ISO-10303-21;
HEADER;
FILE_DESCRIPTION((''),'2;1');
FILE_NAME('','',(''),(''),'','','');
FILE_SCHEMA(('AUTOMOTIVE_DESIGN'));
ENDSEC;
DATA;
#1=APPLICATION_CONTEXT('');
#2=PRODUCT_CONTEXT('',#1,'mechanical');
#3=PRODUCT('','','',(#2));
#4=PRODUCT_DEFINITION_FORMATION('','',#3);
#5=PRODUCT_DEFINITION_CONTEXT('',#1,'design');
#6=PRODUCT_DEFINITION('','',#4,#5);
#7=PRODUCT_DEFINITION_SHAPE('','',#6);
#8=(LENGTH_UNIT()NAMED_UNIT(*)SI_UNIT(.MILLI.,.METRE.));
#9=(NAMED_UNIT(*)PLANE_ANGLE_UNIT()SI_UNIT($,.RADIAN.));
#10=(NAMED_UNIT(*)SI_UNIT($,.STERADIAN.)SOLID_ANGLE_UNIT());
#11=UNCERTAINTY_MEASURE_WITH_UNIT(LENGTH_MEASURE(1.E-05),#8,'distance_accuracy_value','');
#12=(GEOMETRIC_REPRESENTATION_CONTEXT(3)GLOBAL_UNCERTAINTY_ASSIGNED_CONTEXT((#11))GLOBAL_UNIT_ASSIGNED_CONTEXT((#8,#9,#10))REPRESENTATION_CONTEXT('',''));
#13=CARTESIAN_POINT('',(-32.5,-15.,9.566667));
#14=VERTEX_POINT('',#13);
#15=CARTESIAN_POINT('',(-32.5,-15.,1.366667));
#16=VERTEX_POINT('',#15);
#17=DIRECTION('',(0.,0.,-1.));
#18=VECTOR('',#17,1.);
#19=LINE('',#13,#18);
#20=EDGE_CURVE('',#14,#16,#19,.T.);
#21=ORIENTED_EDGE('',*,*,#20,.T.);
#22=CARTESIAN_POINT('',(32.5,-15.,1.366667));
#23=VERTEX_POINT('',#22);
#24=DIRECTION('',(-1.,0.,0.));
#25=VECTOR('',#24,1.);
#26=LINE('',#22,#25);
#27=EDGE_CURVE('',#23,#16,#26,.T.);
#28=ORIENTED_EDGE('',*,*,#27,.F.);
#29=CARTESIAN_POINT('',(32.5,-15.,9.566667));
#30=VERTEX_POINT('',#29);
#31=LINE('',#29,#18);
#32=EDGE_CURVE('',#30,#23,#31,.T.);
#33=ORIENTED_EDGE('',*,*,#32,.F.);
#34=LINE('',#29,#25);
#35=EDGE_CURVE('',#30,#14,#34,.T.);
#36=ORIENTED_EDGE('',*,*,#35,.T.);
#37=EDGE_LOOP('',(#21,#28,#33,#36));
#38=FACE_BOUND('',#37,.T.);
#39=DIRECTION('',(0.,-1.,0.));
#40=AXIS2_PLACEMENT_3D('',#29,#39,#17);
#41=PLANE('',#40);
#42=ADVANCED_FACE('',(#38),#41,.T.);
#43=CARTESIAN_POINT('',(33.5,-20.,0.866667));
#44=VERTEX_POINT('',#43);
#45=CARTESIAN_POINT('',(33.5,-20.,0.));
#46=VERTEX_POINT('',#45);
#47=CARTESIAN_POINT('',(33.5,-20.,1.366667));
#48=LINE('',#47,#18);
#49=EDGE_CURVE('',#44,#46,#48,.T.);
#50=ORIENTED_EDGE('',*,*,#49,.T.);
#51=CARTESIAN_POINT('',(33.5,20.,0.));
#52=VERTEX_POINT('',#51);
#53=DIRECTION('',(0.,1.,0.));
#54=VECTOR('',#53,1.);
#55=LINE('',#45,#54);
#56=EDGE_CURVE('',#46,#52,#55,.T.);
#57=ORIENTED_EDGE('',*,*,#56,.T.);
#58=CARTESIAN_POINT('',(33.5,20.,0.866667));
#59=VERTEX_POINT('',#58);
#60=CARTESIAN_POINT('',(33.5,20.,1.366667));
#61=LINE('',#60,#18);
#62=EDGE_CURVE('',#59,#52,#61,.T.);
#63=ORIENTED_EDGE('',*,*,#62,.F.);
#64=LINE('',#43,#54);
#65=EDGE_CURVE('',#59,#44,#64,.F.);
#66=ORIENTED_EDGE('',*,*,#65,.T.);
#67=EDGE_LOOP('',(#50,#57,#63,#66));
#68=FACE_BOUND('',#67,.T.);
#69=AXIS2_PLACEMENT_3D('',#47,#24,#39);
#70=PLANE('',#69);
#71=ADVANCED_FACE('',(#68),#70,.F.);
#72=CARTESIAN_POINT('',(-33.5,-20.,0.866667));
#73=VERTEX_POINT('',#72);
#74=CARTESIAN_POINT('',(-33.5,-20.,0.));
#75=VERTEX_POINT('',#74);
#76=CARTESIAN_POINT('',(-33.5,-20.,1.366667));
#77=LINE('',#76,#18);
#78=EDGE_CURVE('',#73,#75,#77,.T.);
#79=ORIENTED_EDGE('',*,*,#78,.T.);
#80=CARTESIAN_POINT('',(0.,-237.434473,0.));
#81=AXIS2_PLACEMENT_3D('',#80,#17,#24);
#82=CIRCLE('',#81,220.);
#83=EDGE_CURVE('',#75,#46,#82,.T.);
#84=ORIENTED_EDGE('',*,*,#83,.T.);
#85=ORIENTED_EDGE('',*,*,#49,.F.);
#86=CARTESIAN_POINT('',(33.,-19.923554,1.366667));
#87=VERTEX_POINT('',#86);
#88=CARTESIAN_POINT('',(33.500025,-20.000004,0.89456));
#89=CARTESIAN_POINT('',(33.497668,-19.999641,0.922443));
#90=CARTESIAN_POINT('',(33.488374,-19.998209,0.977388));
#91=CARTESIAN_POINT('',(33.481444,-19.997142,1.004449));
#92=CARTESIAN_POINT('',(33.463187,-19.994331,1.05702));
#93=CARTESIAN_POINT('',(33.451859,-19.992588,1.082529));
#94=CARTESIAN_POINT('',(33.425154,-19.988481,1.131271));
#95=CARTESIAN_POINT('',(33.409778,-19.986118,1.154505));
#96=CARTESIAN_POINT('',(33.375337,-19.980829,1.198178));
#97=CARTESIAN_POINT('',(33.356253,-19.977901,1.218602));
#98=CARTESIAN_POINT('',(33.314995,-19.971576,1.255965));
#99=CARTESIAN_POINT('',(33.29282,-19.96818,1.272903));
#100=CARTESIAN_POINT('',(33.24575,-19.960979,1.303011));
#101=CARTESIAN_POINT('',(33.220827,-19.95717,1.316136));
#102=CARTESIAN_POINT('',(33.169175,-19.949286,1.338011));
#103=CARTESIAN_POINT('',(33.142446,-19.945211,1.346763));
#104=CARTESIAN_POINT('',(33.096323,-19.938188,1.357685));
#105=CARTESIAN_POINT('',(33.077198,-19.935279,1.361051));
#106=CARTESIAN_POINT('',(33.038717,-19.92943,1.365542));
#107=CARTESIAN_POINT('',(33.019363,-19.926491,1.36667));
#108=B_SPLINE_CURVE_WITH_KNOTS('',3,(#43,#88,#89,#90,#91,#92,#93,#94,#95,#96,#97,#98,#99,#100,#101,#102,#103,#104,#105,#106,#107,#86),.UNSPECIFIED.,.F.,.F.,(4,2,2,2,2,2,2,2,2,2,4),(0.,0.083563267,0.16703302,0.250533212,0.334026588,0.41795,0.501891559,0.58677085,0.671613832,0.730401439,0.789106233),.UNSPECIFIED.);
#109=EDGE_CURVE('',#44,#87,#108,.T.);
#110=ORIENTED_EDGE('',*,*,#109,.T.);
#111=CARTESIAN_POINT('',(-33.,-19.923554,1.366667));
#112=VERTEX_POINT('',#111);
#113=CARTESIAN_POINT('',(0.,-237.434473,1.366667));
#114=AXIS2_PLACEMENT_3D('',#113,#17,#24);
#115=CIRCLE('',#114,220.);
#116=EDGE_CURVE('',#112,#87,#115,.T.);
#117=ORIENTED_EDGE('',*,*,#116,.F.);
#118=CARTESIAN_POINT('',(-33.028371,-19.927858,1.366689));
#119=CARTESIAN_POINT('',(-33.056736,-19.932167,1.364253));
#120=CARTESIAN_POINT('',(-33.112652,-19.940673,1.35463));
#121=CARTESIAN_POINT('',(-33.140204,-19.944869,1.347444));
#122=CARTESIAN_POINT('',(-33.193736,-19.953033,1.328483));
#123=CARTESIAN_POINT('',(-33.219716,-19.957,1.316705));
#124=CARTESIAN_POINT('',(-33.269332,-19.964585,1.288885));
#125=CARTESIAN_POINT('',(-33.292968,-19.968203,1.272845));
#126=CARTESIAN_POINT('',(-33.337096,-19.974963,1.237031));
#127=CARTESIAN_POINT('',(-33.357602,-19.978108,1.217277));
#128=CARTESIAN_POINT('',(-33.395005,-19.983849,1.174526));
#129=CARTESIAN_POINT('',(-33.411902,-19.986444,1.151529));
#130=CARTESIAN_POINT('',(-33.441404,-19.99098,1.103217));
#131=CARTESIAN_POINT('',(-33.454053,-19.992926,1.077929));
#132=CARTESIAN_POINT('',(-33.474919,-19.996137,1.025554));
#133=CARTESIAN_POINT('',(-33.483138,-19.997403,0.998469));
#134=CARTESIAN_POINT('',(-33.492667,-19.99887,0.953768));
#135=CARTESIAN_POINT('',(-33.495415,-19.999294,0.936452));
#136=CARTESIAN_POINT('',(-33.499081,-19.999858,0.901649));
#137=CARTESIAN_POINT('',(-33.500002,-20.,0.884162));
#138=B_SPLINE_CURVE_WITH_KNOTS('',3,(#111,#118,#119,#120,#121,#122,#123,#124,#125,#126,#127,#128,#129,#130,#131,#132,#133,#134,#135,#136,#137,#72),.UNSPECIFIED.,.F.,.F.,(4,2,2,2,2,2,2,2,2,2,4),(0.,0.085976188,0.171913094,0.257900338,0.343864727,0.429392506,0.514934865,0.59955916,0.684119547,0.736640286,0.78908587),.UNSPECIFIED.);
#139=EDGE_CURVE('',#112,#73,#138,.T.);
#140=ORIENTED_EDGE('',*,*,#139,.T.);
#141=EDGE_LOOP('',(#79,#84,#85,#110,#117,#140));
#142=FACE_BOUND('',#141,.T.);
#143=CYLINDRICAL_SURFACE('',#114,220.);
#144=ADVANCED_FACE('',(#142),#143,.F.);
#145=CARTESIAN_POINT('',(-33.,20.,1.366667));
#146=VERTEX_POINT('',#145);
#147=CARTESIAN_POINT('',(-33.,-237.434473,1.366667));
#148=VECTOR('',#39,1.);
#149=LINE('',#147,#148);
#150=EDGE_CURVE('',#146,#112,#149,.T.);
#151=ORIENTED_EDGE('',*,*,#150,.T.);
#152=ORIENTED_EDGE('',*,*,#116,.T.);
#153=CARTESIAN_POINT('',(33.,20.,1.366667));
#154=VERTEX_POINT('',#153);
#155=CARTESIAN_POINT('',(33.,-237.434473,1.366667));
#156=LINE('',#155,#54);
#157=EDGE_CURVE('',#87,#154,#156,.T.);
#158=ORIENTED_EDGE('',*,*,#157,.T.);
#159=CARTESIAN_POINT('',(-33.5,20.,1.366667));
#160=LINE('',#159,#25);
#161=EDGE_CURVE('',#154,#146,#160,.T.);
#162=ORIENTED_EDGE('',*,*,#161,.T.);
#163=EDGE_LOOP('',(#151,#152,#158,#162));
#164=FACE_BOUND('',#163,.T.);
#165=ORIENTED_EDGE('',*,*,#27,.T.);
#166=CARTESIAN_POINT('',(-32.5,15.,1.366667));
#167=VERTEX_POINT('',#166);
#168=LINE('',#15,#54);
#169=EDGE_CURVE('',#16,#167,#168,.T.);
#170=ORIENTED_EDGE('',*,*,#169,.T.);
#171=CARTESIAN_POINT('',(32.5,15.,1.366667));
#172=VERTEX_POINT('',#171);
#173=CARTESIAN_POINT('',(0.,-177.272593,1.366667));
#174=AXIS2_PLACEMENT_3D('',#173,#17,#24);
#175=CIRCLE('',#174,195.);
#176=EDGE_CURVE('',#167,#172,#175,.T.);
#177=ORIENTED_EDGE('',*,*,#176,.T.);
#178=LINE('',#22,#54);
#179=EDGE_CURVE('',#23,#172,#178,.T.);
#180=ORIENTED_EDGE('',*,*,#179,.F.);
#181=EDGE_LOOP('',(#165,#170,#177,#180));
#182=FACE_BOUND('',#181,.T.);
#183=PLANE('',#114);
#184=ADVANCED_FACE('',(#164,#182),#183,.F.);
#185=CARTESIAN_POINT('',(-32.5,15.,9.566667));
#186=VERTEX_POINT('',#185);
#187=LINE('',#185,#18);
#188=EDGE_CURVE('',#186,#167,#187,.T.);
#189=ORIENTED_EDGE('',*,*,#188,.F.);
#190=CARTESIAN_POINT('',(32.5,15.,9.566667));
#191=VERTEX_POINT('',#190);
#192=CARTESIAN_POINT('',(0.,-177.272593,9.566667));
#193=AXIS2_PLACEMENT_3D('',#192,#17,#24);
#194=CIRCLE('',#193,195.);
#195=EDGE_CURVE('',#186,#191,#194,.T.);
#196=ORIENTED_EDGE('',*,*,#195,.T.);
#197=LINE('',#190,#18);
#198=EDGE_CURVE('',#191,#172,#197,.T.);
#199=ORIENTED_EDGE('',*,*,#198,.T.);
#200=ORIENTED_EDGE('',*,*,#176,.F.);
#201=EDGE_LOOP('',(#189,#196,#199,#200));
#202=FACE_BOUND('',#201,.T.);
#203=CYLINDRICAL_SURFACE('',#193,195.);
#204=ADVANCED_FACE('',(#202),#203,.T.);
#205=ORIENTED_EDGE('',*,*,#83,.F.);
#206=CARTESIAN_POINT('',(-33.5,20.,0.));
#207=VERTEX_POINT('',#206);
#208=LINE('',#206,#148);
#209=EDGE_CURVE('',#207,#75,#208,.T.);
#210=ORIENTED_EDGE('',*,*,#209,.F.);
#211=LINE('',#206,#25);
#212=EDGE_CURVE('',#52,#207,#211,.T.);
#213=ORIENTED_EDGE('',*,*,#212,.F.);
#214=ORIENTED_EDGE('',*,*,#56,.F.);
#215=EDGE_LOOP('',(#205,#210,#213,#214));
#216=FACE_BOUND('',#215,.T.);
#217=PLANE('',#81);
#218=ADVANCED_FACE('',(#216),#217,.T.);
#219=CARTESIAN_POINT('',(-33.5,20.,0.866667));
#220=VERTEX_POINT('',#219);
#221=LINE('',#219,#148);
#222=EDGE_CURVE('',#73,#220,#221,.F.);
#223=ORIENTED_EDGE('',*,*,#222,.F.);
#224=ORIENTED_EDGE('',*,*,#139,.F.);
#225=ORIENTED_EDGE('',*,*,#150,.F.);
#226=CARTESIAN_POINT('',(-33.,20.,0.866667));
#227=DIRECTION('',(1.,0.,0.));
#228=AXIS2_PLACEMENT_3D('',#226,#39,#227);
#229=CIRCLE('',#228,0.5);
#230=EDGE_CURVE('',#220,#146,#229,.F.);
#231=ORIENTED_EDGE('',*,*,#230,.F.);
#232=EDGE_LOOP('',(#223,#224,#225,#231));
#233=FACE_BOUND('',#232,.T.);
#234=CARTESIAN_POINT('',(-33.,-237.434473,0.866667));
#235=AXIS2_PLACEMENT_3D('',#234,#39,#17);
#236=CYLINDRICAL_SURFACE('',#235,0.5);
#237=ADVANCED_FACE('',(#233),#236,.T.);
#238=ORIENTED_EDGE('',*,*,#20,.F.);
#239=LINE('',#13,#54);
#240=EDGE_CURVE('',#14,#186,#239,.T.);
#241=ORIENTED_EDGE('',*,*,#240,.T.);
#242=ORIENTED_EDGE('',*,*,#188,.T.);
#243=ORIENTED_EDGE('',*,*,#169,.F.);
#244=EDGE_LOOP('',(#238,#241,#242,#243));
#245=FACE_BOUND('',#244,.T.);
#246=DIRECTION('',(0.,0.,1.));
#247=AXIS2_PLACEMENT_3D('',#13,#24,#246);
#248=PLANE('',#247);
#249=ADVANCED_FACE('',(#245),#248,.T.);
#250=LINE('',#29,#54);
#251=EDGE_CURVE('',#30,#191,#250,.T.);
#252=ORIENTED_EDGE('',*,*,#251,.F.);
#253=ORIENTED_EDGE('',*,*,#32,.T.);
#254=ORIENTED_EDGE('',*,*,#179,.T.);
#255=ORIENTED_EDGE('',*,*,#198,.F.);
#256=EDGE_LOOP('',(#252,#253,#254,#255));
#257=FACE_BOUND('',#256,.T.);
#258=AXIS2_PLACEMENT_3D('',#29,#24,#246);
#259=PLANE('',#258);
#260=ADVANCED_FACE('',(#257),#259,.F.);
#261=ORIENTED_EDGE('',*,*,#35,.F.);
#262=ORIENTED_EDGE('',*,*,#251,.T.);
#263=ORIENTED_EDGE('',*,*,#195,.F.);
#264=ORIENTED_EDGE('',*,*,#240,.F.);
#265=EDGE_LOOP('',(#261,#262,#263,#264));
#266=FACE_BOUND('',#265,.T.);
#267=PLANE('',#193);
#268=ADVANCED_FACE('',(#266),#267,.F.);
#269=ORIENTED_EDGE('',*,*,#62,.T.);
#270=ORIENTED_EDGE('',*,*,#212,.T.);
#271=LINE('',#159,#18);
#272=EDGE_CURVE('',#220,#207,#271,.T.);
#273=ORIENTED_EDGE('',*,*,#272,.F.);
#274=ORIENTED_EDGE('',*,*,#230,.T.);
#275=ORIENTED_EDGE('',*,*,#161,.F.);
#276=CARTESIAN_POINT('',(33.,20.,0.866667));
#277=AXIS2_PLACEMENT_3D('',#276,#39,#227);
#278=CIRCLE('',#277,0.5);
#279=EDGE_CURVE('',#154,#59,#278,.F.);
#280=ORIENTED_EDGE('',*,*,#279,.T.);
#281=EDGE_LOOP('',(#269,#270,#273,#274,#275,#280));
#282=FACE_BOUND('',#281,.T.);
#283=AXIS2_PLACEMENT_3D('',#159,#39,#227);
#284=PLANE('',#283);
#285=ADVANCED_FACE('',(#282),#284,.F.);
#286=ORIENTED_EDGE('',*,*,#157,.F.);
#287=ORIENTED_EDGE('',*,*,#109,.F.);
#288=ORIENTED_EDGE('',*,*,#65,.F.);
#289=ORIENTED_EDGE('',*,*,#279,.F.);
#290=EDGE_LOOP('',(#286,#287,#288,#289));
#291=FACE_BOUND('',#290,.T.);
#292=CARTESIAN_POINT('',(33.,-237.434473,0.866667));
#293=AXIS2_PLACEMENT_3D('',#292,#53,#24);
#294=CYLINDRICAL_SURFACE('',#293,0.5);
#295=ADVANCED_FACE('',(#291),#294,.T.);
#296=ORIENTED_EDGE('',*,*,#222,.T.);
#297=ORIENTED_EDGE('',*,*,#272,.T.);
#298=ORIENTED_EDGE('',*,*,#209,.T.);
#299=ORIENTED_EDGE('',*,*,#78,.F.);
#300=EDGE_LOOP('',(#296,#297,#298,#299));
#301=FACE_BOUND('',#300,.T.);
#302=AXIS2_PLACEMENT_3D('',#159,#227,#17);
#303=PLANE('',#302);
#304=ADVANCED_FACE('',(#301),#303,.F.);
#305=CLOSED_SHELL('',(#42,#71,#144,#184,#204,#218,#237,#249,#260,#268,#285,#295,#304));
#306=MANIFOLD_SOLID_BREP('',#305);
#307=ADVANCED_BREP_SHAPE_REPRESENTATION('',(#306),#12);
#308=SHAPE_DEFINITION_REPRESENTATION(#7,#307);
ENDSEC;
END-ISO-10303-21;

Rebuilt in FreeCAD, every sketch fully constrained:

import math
import FreeCAD as App
import Part
import Sketcher


def edges_at(feature, points):
    """Names of the edges that pass closest to the given points."""
    edges = feature.Shape.Edges
    near = lambda p: min(range(len(edges)), key=lambda i: edges[i].distToShape(Part.Vertex(*p))[0])
    return sorted({f"Edge{near(p) + 1}" for p in points})

doc = App.newDocument("Part")
body = doc.addObject("PartDesign::Body", "Body")

# Sketch on XY plane
sketch1 = doc.addObject("Sketcher::SketchObject", "Sketch")
body.addObject(sketch1)
sketch1.AttachmentSupport = (doc.XY_Plane, [""])
sketch1.MapMode = "FlatFace"
sketch1.addGeometry(Part.LineSegment(App.Vector(-34, 20, 0), App.Vector(-34, -20, 0)), False)
sketch1.addGeometry(Part.ArcOfCircle(Part.Circle(App.Vector(0, -237, 0), App.Vector(0, 0, 1), 220), math.radians(81.24), math.radians(98.76)), False)
sketch1.addGeometry(Part.LineSegment(App.Vector(34, -20, 0), App.Vector(34, 20, 0)), False)
sketch1.addGeometry(Part.LineSegment(App.Vector(34, 20, 0), App.Vector(-34, 20, 0)), False)
sketch1.addConstraint(Sketcher.Constraint("Coincident", 0, 2, 1, 2))
sketch1.addConstraint(Sketcher.Constraint("Coincident", 1, 1, 2, 1))
sketch1.addConstraint(Sketcher.Constraint("Coincident", 2, 2, 3, 1))
sketch1.addConstraint(Sketcher.Constraint("Coincident", 3, 2, 0, 1))
sketch1.addConstraint(Sketcher.Constraint("Vertical", 0))
sketch1.addConstraint(Sketcher.Constraint("Vertical", 2))
sketch1.addConstraint(Sketcher.Constraint("Horizontal", 3))
sketch1.addConstraint(Sketcher.Constraint("Symmetric", 0, 2, 2, 2, -1, 1))
sketch1.addConstraint(Sketcher.Constraint("PointOnObject", 1, 3, -2))
sketch1.addConstraint(Sketcher.Constraint("Radius", 1, 220.0))
sketch1.addConstraint(Sketcher.Constraint("DistanceX", 3, 2, 3, 1, 67.0))
sketch1.addConstraint(Sketcher.Constraint("DistanceY", 0, 2, 0, 1, 40.0))
pad1 = doc.addObject("PartDesign::Pad", "Pad")
body.addObject(pad1)
pad1.Profile = sketch1
pad1.Length = 1.366667

# Sketch on XY plane
sketch2 = doc.addObject("Sketcher::SketchObject", "Sketch001")
body.addObject(sketch2)
sketch2.AttachmentSupport = (doc.XY_Plane, [""])
sketch2.MapMode = "FlatFace"
sketch2.AttachmentOffset = App.Placement(App.Vector(0, 0, 1.366667), App.Rotation())
sketch2.addGeometry(Part.LineSegment(App.Vector(-32, -15, 0), App.Vector(32, -15, 0)), False)
sketch2.addGeometry(Part.LineSegment(App.Vector(32, -15, 0), App.Vector(32, 15, 0)), False)
sketch2.addGeometry(Part.ArcOfCircle(Part.Circle(App.Vector(0, -177, 0), App.Vector(0, 0, 1), 195), math.radians(80.41), math.radians(99.59)), False)
sketch2.addGeometry(Part.LineSegment(App.Vector(-32, 15, 0), App.Vector(-32, -15, 0)), False)
sketch2.addConstraint(Sketcher.Constraint("Coincident", 0, 2, 1, 1))
sketch2.addConstraint(Sketcher.Constraint("Coincident", 1, 2, 2, 1))
sketch2.addConstraint(Sketcher.Constraint("Coincident", 2, 2, 3, 1))
sketch2.addConstraint(Sketcher.Constraint("Coincident", 3, 2, 0, 1))
sketch2.addConstraint(Sketcher.Constraint("Horizontal", 0))
sketch2.addConstraint(Sketcher.Constraint("Vertical", 1))
sketch2.addConstraint(Sketcher.Constraint("Vertical", 3))
sketch2.addConstraint(Sketcher.Constraint("Symmetric", 0, 2, 2, 2, -1, 1))
sketch2.addConstraint(Sketcher.Constraint("PointOnObject", 2, 3, -2))
sketch2.addConstraint(Sketcher.Constraint("Radius", 2, 195.0))
sketch2.addConstraint(Sketcher.Constraint("DistanceX", 0, 1, 0, 2, 65.0))
sketch2.addConstraint(Sketcher.Constraint("DistanceY", 1, 1, 1, 2, 30.0))
pad2 = doc.addObject("PartDesign::Pad", "Pad001")
body.addObject(pad2)
pad2.Profile = sketch2
pad2.Length = 8.2
doc.recompute()

fillet = doc.addObject("PartDesign::Fillet", "Fillet")
body.addObject(fillet)
fillet.Base = (pad2, edges_at(pad2, [(33.5, 0, 1.367), (-33.5, 0, 1.367)]))
fillet.Radius = 0.5

doc.recompute()
